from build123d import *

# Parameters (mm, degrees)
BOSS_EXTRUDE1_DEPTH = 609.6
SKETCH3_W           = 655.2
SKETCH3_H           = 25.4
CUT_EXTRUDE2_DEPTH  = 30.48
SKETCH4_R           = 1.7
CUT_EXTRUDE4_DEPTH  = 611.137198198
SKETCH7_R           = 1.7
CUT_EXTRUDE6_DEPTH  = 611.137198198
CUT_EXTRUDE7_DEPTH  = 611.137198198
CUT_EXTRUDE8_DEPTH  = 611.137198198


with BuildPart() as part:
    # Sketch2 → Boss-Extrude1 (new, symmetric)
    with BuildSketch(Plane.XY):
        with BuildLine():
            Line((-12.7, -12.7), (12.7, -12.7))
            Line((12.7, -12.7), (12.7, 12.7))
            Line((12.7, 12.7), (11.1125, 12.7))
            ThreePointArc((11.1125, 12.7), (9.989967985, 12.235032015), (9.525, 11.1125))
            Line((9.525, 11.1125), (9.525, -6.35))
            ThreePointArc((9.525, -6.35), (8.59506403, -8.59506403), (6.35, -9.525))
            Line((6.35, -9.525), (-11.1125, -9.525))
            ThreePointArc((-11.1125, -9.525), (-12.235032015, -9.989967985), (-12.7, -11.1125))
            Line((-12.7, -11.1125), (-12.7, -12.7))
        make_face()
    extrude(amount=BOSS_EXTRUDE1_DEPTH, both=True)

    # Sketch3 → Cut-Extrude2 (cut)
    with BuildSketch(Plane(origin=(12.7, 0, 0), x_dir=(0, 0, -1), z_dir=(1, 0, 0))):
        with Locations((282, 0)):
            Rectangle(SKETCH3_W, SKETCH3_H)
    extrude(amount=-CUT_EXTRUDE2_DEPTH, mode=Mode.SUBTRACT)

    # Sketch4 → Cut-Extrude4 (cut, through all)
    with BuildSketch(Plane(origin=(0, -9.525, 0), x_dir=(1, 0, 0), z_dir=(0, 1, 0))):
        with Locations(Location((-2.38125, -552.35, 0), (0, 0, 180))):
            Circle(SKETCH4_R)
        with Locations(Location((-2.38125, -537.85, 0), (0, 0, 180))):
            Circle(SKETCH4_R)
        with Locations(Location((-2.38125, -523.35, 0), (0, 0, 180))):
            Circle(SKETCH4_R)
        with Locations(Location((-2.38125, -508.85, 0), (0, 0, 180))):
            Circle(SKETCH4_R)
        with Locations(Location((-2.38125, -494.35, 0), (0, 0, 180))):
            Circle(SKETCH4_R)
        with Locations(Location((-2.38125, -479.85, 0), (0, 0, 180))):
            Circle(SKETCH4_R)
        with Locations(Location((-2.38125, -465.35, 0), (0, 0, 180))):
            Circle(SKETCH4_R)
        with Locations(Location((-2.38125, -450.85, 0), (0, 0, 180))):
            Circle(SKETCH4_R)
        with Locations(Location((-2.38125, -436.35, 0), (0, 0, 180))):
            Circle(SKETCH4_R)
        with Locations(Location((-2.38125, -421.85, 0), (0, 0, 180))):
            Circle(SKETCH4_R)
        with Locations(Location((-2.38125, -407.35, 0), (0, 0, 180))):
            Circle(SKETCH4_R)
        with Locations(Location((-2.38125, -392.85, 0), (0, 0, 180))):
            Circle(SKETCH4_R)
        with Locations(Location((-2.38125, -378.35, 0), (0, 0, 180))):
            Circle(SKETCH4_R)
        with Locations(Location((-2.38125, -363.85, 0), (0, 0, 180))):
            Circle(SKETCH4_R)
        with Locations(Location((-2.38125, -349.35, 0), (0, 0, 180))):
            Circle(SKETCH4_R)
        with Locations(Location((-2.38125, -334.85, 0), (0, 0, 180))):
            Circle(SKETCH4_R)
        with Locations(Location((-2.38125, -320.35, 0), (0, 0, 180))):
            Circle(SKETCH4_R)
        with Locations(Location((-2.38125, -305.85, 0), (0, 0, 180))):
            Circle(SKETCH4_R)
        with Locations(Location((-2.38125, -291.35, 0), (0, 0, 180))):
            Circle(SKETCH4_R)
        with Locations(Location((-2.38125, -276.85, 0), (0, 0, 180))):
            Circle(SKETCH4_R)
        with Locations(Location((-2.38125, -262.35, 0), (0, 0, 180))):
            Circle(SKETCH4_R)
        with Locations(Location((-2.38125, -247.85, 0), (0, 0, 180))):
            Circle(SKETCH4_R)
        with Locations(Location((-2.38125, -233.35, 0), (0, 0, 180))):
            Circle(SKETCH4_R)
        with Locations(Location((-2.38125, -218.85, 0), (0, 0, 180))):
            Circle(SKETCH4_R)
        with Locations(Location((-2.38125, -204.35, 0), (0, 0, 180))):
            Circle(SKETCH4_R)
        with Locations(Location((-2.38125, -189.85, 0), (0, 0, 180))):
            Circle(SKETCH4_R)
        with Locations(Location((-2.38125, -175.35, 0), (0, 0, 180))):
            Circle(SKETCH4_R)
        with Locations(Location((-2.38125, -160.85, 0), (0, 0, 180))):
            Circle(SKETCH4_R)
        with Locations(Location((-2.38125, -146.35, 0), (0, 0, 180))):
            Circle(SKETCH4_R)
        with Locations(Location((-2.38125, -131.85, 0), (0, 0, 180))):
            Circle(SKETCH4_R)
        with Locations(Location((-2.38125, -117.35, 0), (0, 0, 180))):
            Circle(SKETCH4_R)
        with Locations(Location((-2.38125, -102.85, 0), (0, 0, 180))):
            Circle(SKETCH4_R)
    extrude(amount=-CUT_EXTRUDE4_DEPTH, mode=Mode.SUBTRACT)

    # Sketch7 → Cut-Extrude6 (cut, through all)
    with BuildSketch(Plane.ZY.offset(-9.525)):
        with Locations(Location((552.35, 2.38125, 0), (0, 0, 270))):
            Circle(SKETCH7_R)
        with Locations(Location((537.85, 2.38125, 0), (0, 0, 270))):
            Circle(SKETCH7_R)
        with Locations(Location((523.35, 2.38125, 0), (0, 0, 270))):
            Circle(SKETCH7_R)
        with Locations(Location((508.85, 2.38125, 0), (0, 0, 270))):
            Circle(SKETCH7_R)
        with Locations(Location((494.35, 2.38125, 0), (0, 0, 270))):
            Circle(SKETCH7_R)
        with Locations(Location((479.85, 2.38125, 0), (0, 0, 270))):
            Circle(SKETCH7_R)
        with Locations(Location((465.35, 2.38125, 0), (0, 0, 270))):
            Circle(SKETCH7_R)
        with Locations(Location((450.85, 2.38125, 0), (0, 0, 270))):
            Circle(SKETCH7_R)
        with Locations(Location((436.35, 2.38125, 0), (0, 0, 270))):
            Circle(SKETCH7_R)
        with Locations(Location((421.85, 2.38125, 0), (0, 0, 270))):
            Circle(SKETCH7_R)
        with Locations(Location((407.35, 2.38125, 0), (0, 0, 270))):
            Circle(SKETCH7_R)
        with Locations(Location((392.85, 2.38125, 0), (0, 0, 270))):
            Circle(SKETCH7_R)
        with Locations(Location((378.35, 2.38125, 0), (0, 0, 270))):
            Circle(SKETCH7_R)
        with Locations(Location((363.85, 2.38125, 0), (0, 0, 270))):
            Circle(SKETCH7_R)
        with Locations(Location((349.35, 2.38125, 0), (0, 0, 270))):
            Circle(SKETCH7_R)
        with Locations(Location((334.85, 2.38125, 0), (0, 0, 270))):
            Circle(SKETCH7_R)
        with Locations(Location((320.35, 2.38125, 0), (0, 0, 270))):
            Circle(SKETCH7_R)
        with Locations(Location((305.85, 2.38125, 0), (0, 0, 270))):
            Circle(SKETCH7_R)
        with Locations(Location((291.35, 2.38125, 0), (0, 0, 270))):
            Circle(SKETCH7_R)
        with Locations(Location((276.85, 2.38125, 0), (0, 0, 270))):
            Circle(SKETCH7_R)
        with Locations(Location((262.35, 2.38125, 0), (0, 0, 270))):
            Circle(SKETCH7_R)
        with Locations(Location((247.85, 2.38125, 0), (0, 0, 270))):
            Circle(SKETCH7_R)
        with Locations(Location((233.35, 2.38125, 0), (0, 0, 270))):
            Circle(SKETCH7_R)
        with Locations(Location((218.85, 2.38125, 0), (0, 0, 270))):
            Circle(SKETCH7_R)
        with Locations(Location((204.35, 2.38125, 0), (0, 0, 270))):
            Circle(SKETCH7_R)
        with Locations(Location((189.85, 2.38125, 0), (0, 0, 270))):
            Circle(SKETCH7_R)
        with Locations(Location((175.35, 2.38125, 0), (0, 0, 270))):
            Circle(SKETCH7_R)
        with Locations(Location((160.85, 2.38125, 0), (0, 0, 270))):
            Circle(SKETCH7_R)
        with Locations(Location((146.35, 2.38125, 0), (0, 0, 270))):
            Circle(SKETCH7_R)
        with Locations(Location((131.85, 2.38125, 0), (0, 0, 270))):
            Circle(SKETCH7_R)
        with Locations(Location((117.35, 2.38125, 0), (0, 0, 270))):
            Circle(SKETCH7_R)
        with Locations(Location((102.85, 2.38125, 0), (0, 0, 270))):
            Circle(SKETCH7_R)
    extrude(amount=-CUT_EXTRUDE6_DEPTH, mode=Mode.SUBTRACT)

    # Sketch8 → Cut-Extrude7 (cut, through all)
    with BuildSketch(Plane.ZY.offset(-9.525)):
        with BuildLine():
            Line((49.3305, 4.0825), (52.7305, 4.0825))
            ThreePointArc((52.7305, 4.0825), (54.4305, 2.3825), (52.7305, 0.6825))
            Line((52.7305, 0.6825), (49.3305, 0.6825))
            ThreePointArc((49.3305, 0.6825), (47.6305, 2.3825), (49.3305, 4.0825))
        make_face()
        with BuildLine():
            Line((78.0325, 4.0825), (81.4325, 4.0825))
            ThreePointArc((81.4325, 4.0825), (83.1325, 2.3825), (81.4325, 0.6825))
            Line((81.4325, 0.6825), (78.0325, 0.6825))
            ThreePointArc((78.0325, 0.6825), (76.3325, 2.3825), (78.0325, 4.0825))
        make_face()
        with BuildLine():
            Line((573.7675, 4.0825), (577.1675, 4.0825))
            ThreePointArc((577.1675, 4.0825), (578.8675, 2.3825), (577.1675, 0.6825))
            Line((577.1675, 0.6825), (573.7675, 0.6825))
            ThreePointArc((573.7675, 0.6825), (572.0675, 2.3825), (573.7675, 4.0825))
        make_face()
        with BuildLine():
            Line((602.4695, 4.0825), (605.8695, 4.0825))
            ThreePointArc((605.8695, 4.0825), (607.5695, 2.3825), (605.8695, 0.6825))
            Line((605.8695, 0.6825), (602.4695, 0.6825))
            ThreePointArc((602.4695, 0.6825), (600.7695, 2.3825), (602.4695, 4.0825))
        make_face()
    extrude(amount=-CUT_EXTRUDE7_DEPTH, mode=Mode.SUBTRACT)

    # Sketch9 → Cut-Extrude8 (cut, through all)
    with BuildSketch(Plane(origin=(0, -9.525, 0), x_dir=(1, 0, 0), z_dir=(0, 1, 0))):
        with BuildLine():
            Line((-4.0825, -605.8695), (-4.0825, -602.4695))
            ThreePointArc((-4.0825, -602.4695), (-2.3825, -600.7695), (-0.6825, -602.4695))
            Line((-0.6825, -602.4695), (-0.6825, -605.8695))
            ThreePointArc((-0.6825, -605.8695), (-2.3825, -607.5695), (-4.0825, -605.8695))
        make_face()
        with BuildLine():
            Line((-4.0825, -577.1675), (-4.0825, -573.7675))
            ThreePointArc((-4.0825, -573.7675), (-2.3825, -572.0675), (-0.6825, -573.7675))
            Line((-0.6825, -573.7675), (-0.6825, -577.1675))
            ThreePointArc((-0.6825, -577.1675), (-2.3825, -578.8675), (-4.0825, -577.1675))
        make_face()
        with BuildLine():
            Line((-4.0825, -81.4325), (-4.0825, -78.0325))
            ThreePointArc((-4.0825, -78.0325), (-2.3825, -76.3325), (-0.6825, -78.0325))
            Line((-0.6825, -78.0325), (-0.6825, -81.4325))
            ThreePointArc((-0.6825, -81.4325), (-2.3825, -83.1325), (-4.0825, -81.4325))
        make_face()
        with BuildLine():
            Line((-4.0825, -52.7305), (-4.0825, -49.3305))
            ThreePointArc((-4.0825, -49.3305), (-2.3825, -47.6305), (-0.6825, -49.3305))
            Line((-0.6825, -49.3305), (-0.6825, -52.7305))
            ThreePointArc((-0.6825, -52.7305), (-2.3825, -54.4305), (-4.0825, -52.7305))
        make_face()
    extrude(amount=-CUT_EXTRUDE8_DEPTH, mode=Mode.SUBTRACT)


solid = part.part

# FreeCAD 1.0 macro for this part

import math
import FreeCAD as App
import Part
import Sketcher
Q = App.Units.Quantity


def add_polygon(sketch, points):
    """Adds a closed chain of lines whose ends are joined by coincident constraints."""
    first, n = sketch.GeometryCount, len(points)
    for a, b in zip(points, points[1:] + points[:1]):
        sketch.addGeometry(Part.LineSegment(App.Vector(*a, 0), App.Vector(*b, 0)), False)
    for i in range(n):
        sketch.addConstraint(Sketcher.Constraint("Coincident", first + i, 2, first + (i + 1) % n, 1))

doc = App.newDocument("Part")
body = doc.addObject("PartDesign::Body", "Body")

# Sketch on XY plane
sketch1 = body.newObject("Sketcher::SketchObject", "Sketch")
sketch1.AttachmentSupport = (doc.getObject("XY_Plane"), [""])
sketch1.MapMode = "FlatFace"
sketch1.addGeometry([
    Part.LineSegment(App.Vector(-12.7, -12.7, 0), App.Vector(12.7, -12.7, 0)),  # 0
    Part.LineSegment(App.Vector(12.7, -12.7, 0), App.Vector(12.7, 12.7, 0)),  # 1
    Part.LineSegment(App.Vector(12.7, 12.7, 0), App.Vector(11.1125, 12.7, 0)),  # 2
    Part.ArcOfCircle(Part.Circle(App.Vector(11.1125, 11.1125, 0), App.Vector(0, 0, 1), 1.5875), math.radians(90), math.radians(180)),  # 3
    Part.LineSegment(App.Vector(9.525, 11.1125, 0), App.Vector(9.525, -6.35, 0)),  # 4
    Part.ArcOfCircle(Part.Circle(App.Vector(6.35, -6.35, 0), App.Vector(0, 0, 1), 3.175), math.radians(-90), math.radians(0)),  # 5
    Part.LineSegment(App.Vector(6.35, -9.525, 0), App.Vector(-11.1125, -9.525, 0)),  # 6
    Part.ArcOfCircle(Part.Circle(App.Vector(-11.1125, -11.1125, 0), App.Vector(0, 0, 1), 1.5875), math.radians(90), math.radians(180)),  # 7
    Part.LineSegment(App.Vector(-12.7, -11.1125, 0), App.Vector(-12.7, -12.7, 0)),  # 8
], False)
sketch1.addConstraint([
    Sketcher.Constraint("Coincident", 0, 2, 1, 1),
    Sketcher.Constraint("Coincident", 1, 2, 2, 1),
    Sketcher.Constraint("Tangent", 2, 2, 3, 1),
    Sketcher.Constraint("Tangent", 3, 2, 4, 1),
    Sketcher.Constraint("Tangent", 4, 2, 5, 2),
    Sketcher.Constraint("Tangent", 5, 1, 6, 1),
    Sketcher.Constraint("Tangent", 6, 2, 7, 1),
    Sketcher.Constraint("Tangent", 7, 2, 8, 1),
    Sketcher.Constraint("Coincident", 8, 2, 0, 1),
    Sketcher.Constraint("Horizontal", 0),
    Sketcher.Constraint("Vertical", 1),
    Sketcher.Constraint("Horizontal", 2),
    Sketcher.Constraint("Vertical", 4),
    Sketcher.Constraint("Horizontal", 6),
    Sketcher.Constraint("Vertical", 8),
    Sketcher.Constraint("Equal", 3, 7),
    Sketcher.Constraint("Symmetric", 3, 3, 7, 3, -1, 1),
    Sketcher.Constraint("Symmetric", 1, 2, 8, 2, -1, 1),
    Sketcher.Constraint("Equal", 0, 1),
    Sketcher.Constraint("DistanceX", 0, 1, 0, 2, Q("1 in")),
    Sketcher.Constraint("Radius", 3, Q("0.0625 in")),
    Sketcher.Constraint("Radius", 5, Q("0.125 in")),
])
pad1 = body.newObject("PartDesign::Pad", "Pad")
pad1.Profile = sketch1
pad1.Length = Q("48 in")
pad1.Midplane = True

# Sketch on YZ plane
sketch2 = body.newObject("Sketcher::SketchObject", "Sketch001")
sketch2.AttachmentSupport = (doc.getObject("YZ_Plane"), [""])
sketch2.MapMode = "FlatFace"
sketch2.AttachmentOffset = App.Placement(App.Vector(0, 0, 0.5 * 25.4), App.Rotation())
add_polygon(sketch2, [(12.7, 45.6), (-12.7, 45.6), (-12.7, -609.6), (12.7, -609.6)])  # lines 0-3
sketch2.addConstraint([
    Sketcher.Constraint("Horizontal", 0),
    Sketcher.Constraint("Vertical", 1),
    Sketcher.Constraint("Horizontal", 2),
    Sketcher.Constraint("Vertical", 3),
    Sketcher.Constraint("DistanceX", 0, 2, 0, 1, Q("1 in")),
    Sketcher.Constraint("DistanceY", 1, 2, -1, 1, Q("24 in")),
    Sketcher.Constraint("DistanceX", 0, 2, -1, 1, Q("0.5 in")),
    Sketcher.Constraint("DistanceY", 1, 2, 1, 1, Q("655.2 mm")),
])
pocket1 = body.newObject("PartDesign::Pocket", "Pocket")
pocket1.Profile = sketch2
pocket1.Length = Q("1.2 in")

# Sketch on XZ plane
sketch3 = body.newObject("Sketcher::SketchObject", "Sketch002")
sketch3.AttachmentSupport = (doc.getObject("XZ_Plane"), [""])
sketch3.MapMode = "FlatFace"
sketch3.AttachmentOffset = App.Placement(App.Vector(0, 0, 0.375 * 25.4), App.Rotation())
sketch3.addGeometry([
    Part.Circle(App.Vector(-2.38125, 552.35, 0), App.Vector(0, 0, 1), 1.7),  # 0
    Part.Circle(App.Vector(-2.38125, 537.85, 0), App.Vector(0, 0, 1), 1.7),  # 1
    Part.Circle(App.Vector(-2.38125, 523.35, 0), App.Vector(0, 0, 1), 1.7),  # 2
    Part.Circle(App.Vector(-2.38125, 508.85, 0), App.Vector(0, 0, 1), 1.7),  # 3
    Part.Circle(App.Vector(-2.38125, 494.35, 0), App.Vector(0, 0, 1), 1.7),  # 4
    Part.Circle(App.Vector(-2.38125, 479.85, 0), App.Vector(0, 0, 1), 1.7),  # 5
    Part.Circle(App.Vector(-2.38125, 465.35, 0), App.Vector(0, 0, 1), 1.7),  # 6
    Part.Circle(App.Vector(-2.38125, 450.85, 0), App.Vector(0, 0, 1), 1.7),  # 7
    Part.Circle(App.Vector(-2.38125, 436.35, 0), App.Vector(0, 0, 1), 1.7),  # 8
    Part.Circle(App.Vector(-2.38125, 421.85, 0), App.Vector(0, 0, 1), 1.7),  # 9
    Part.Circle(App.Vector(-2.38125, 407.35, 0), App.Vector(0, 0, 1), 1.7),  # 10
    Part.Circle(App.Vector(-2.38125, 392.85, 0), App.Vector(0, 0, 1), 1.7),  # 11
    Part.Circle(App.Vector(-2.38125, 378.35, 0), App.Vector(0, 0, 1), 1.7),  # 12
    Part.Circle(App.Vector(-2.38125, 363.85, 0), App.Vector(0, 0, 1), 1.7),  # 13
    Part.Circle(App.Vector(-2.38125, 349.35, 0), App.Vector(0, 0, 1), 1.7),  # 14
    Part.Circle(App.Vector(-2.38125, 334.85, 0), App.Vector(0, 0, 1), 1.7),  # 15
    Part.Circle(App.Vector(-2.38125, 320.35, 0), App.Vector(0, 0, 1), 1.7),  # 16
    Part.Circle(App.Vector(-2.38125, 305.85, 0), App.Vector(0, 0, 1), 1.7),  # 17
    Part.Circle(App.Vector(-2.38125, 291.35, 0), App.Vector(0, 0, 1), 1.7),  # 18
    Part.Circle(App.Vector(-2.38125, 276.85, 0), App.Vector(0, 0, 1), 1.7),  # 19
    Part.Circle(App.Vector(-2.38125, 262.35, 0), App.Vector(0, 0, 1), 1.7),  # 20
    Part.Circle(App.Vector(-2.38125, 247.85, 0), App.Vector(0, 0, 1), 1.7),  # 21
    Part.Circle(App.Vector(-2.38125, 233.35, 0), App.Vector(0, 0, 1), 1.7),  # 22
    Part.Circle(App.Vector(-2.38125, 218.85, 0), App.Vector(0, 0, 1), 1.7),  # 23
    Part.Circle(App.Vector(-2.38125, 204.35, 0), App.Vector(0, 0, 1), 1.7),  # 24
    Part.Circle(App.Vector(-2.38125, 189.85, 0), App.Vector(0, 0, 1), 1.7),  # 25
    Part.Circle(App.Vector(-2.38125, 175.35, 0), App.Vector(0, 0, 1), 1.7),  # 26
    Part.Circle(App.Vector(-2.38125, 160.85, 0), App.Vector(0, 0, 1), 1.7),  # 27
    Part.Circle(App.Vector(-2.38125, 146.35, 0), App.Vector(0, 0, 1), 1.7),  # 28
    Part.Circle(App.Vector(-2.38125, 131.85, 0), App.Vector(0, 0, 1), 1.7),  # 29
    Part.Circle(App.Vector(-2.38125, 117.35, 0), App.Vector(0, 0, 1), 1.7),  # 30
    Part.Circle(App.Vector(-2.38125, 102.85, 0), App.Vector(0, 0, 1), 1.7),  # 31
], False)
sketch3.addConstraint([
    Sketcher.Constraint("Equal", 0, 1),
    Sketcher.Constraint("Equal", 1, 2),
    Sketcher.Constraint("Equal", 2, 3),
    Sketcher.Constraint("Equal", 3, 4),
    Sketcher.Constraint("Equal", 4, 5),
    Sketcher.Constraint("Equal", 5, 6),
    Sketcher.Constraint("Equal", 6, 7),
    Sketcher.Constraint("Equal", 7, 8),
    Sketcher.Constraint("Equal", 8, 9),
    Sketcher.Constraint("Equal", 9, 10),
    Sketcher.Constraint("Equal", 10, 11),
    Sketcher.Constraint("Equal", 11, 12),
    Sketcher.Constraint("Equal", 12, 13),
    Sketcher.Constraint("Equal", 13, 14),
    Sketcher.Constraint("Equal", 14, 15),
    Sketcher.Constraint("Equal", 15, 16),
    Sketcher.Constraint("Equal", 16, 17),
    Sketcher.Constraint("Equal", 17, 18),
    Sketcher.Constraint("Equal", 18, 19),
    Sketcher.Constraint("Equal", 19, 20),
    Sketcher.Constraint("Equal", 20, 21),
    Sketcher.Constraint("Equal", 21, 22),
    Sketcher.Constraint("Equal", 22, 23),
    Sketcher.Constraint("Equal", 23, 24),
    Sketcher.Constraint("Equal", 24, 25),
    Sketcher.Constraint("Equal", 25, 26),
    Sketcher.Constraint("Equal", 26, 27),
    Sketcher.Constraint("Equal", 27, 28),
    Sketcher.Constraint("Equal", 28, 29),
    Sketcher.Constraint("Equal", 29, 30),
    Sketcher.Constraint("Equal", 30, 31),
    Sketcher.Constraint("Vertical", 0, 3, 1, 3),
    Sketcher.Constraint("Vertical", 1, 3, 2, 3),
    Sketcher.Constraint("Vertical", 2, 3, 3, 3),
    Sketcher.Constraint("Vertical", 3, 3, 4, 3),
    Sketcher.Constraint("Vertical", 4, 3, 5, 3),
    Sketcher.Constraint("Vertical", 5, 3, 6, 3),
    Sketcher.Constraint("Vertical", 6, 3, 7, 3),
    Sketcher.Constraint("Vertical", 7, 3, 8, 3),
    Sketcher.Constraint("Vertical", 8, 3, 9, 3),
    Sketcher.Constraint("Vertical", 9, 3, 10, 3),
    Sketcher.Constraint("Vertical", 10, 3, 11, 3),
    Sketcher.Constraint("Vertical", 11, 3, 12, 3),
    Sketcher.Constraint("Vertical", 12, 3, 13, 3),
    Sketcher.Constraint("Vertical", 13, 3, 14, 3),
    Sketcher.Constraint("Vertical", 14, 3, 15, 3),
    Sketcher.Constraint("Vertical", 15, 3, 16, 3),
    Sketcher.Constraint("Vertical", 16, 3, 17, 3),
    Sketcher.Constraint("Vertical", 17, 3, 18, 3),
    Sketcher.Constraint("Vertical", 18, 3, 19, 3),
    Sketcher.Constraint("Vertical", 19, 3, 20, 3),
    Sketcher.Constraint("Vertical", 20, 3, 21, 3),
    Sketcher.Constraint("Vertical", 21, 3, 22, 3),
    Sketcher.Constraint("Vertical", 22, 3, 23, 3),
    Sketcher.Constraint("Vertical", 23, 3, 24, 3),
    Sketcher.Constraint("Vertical", 24, 3, 25, 3),
    Sketcher.Constraint("Vertical", 25, 3, 26, 3),
    Sketcher.Constraint("Vertical", 26, 3, 27, 3),
    Sketcher.Constraint("Vertical", 27, 3, 28, 3),
    Sketcher.Constraint("Vertical", 28, 3, 29, 3),
    Sketcher.Constraint("Vertical", 29, 3, 30, 3),
    Sketcher.Constraint("Vertical", 30, 3, 31, 3),
    Sketcher.Constraint("Diameter", 0, Q("3.4 mm")),
    Sketcher.Constraint("DistanceY", -1, 1, 7, 3, Q("17.75 in")),
    Sketcher.Constraint("DistanceX", 0, 3, -1, 1, Q("0.09375 in")),
    Sketcher.Constraint("DistanceY", -1, 1, 0, 3, Q("552.35 mm")),
    Sketcher.Constraint("DistanceY", -1, 1, 1, 3, Q("537.85 mm")),
    Sketcher.Constraint("DistanceY", -1, 1, 2, 3, Q("523.35 mm")),
    Sketcher.Constraint("DistanceY", -1, 1, 3, 3, Q("508.85 mm")),
    Sketcher.Constraint("DistanceY", -1, 1, 4, 3, Q("494.35 mm")),
    Sketcher.Constraint("DistanceY", -1, 1, 5, 3, Q("479.85 mm")),
    Sketcher.Constraint("DistanceY", -1, 1, 6, 3, Q("465.35 mm")),
    Sketcher.Constraint("DistanceY", -1, 1, 8, 3, Q("436.35 mm")),
    Sketcher.Constraint("DistanceY", -1, 1, 9, 3, Q("421.85 mm")),
    Sketcher.Constraint("DistanceY", -1, 1, 10, 3, Q("407.35 mm")),
    Sketcher.Constraint("DistanceY", -1, 1, 11, 3, Q("392.85 mm")),
    Sketcher.Constraint("DistanceY", -1, 1, 12, 3, Q("378.35 mm")),
    Sketcher.Constraint("DistanceY", -1, 1, 13, 3, Q("363.85 mm")),
    Sketcher.Constraint("DistanceY", -1, 1, 14, 3, Q("349.35 mm")),
    Sketcher.Constraint("DistanceY", -1, 1, 15, 3, Q("334.85 mm")),
    Sketcher.Constraint("DistanceY", -1, 1, 16, 3, Q("320.35 mm")),
    Sketcher.Constraint("DistanceY", -1, 1, 17, 3, Q("305.85 mm")),
    Sketcher.Constraint("DistanceY", -1, 1, 18, 3, Q("291.35 mm")),
    Sketcher.Constraint("DistanceY", -1, 1, 19, 3, Q("276.85 mm")),
    Sketcher.Constraint("DistanceY", -1, 1, 20, 3, Q("262.35 mm")),
    Sketcher.Constraint("DistanceY", -1, 1, 21, 3, Q("247.85 mm")),
    Sketcher.Constraint("DistanceY", -1, 1, 22, 3, Q("233.35 mm")),
    Sketcher.Constraint("DistanceY", -1, 1, 23, 3, Q("218.85 mm")),
    Sketcher.Constraint("DistanceY", -1, 1, 24, 3, Q("204.35 mm")),
    Sketcher.Constraint("DistanceY", -1, 1, 25, 3, Q("189.85 mm")),
    Sketcher.Constraint("DistanceY", -1, 1, 26, 3, Q("175.35 mm")),
    Sketcher.Constraint("DistanceY", -1, 1, 27, 3, Q("160.85 mm")),
    Sketcher.Constraint("DistanceY", -1, 1, 28, 3, Q("146.35 mm")),
    Sketcher.Constraint("DistanceY", -1, 1, 29, 3, Q("131.85 mm")),
    Sketcher.Constraint("DistanceY", -1, 1, 30, 3, Q("117.35 mm")),
    Sketcher.Constraint("DistanceY", -1, 1, 31, 3, Q("102.85 mm")),
])
pocket2 = body.newObject("PartDesign::Pocket", "Pocket001")
pocket2.Profile = sketch3
pocket2.Type = "ThroughAll"
pocket2.Reversed = True

# Sketch on YZ plane
sketch4 = body.newObject("Sketcher::SketchObject", "Sketch003")
sketch4.AttachmentSupport = (doc.getObject("YZ_Plane"), [""])
sketch4.MapMode = "FlatFace"
sketch4.AttachmentOffset = App.Placement(App.Vector(0, 0, 0.375 * 25.4), App.Rotation())
sketch4.addGeometry([
    Part.Circle(App.Vector(2.38125, 552.35, 0), App.Vector(0, 0, 1), 1.7),  # 0
    Part.Circle(App.Vector(2.38125, 537.85, 0), App.Vector(0, 0, 1), 1.7),  # 1
    Part.Circle(App.Vector(2.38125, 523.35, 0), App.Vector(0, 0, 1), 1.7),  # 2
    Part.Circle(App.Vector(2.38125, 508.85, 0), App.Vector(0, 0, 1), 1.7),  # 3
    Part.Circle(App.Vector(2.38125, 494.35, 0), App.Vector(0, 0, 1), 1.7),  # 4
    Part.Circle(App.Vector(2.38125, 479.85, 0), App.Vector(0, 0, 1), 1.7),  # 5
    Part.Circle(App.Vector(2.38125, 465.35, 0), App.Vector(0, 0, 1), 1.7),  # 6
    Part.Circle(App.Vector(2.38125, 450.85, 0), App.Vector(0, 0, 1), 1.7),  # 7
    Part.Circle(App.Vector(2.38125, 436.35, 0), App.Vector(0, 0, 1), 1.7),  # 8
    Part.Circle(App.Vector(2.38125, 421.85, 0), App.Vector(0, 0, 1), 1.7),  # 9
    Part.Circle(App.Vector(2.38125, 407.35, 0), App.Vector(0, 0, 1), 1.7),  # 10
    Part.Circle(App.Vector(2.38125, 392.85, 0), App.Vector(0, 0, 1), 1.7),  # 11
    Part.Circle(App.Vector(2.38125, 378.35, 0), App.Vector(0, 0, 1), 1.7),  # 12
    Part.Circle(App.Vector(2.38125, 363.85, 0), App.Vector(0, 0, 1), 1.7),  # 13
    Part.Circle(App.Vector(2.38125, 349.35, 0), App.Vector(0, 0, 1), 1.7),  # 14
    Part.Circle(App.Vector(2.38125, 334.85, 0), App.Vector(0, 0, 1), 1.7),  # 15
    Part.Circle(App.Vector(2.38125, 320.35, 0), App.Vector(0, 0, 1), 1.7),  # 16
    Part.Circle(App.Vector(2.38125, 305.85, 0), App.Vector(0, 0, 1), 1.7),  # 17
    Part.Circle(App.Vector(2.38125, 291.35, 0), App.Vector(0, 0, 1), 1.7),  # 18
    Part.Circle(App.Vector(2.38125, 276.85, 0), App.Vector(0, 0, 1), 1.7),  # 19
    Part.Circle(App.Vector(2.38125, 262.35, 0), App.Vector(0, 0, 1), 1.7),  # 20
    Part.Circle(App.Vector(2.38125, 247.85, 0), App.Vector(0, 0, 1), 1.7),  # 21
    Part.Circle(App.Vector(2.38125, 233.35, 0), App.Vector(0, 0, 1), 1.7),  # 22
    Part.Circle(App.Vector(2.38125, 218.85, 0), App.Vector(0, 0, 1), 1.7),  # 23
    Part.Circle(App.Vector(2.38125, 204.35, 0), App.Vector(0, 0, 1), 1.7),  # 24
    Part.Circle(App.Vector(2.38125, 189.85, 0), App.Vector(0, 0, 1), 1.7),  # 25
    Part.Circle(App.Vector(2.38125, 175.35, 0), App.Vector(0, 0, 1), 1.7),  # 26
    Part.Circle(App.Vector(2.38125, 160.85, 0), App.Vector(0, 0, 1), 1.7),  # 27
    Part.Circle(App.Vector(2.38125, 146.35, 0), App.Vector(0, 0, 1), 1.7),  # 28
    Part.Circle(App.Vector(2.38125, 131.85, 0), App.Vector(0, 0, 1), 1.7),  # 29
    Part.Circle(App.Vector(2.38125, 117.35, 0), App.Vector(0, 0, 1), 1.7),  # 30
    Part.Circle(App.Vector(2.38125, 102.85, 0), App.Vector(0, 0, 1), 1.7),  # 31
], False)
sketch4.addConstraint([
    Sketcher.Constraint("Equal", 0, 1),
    Sketcher.Constraint("Equal", 1, 2),
    Sketcher.Constraint("Equal", 2, 3),
    Sketcher.Constraint("Equal", 3, 4),
    Sketcher.Constraint("Equal", 4, 5),
    Sketcher.Constraint("Equal", 5, 6),
    Sketcher.Constraint("Equal", 6, 7),
    Sketcher.Constraint("Equal", 7, 8),
    Sketcher.Constraint("Equal", 8, 9),
    Sketcher.Constraint("Equal", 9, 10),
    Sketcher.Constraint("Equal", 10, 11),
    Sketcher.Constraint("Equal", 11, 12),
    Sketcher.Constraint("Equal", 12, 13),
    Sketcher.Constraint("Equal", 13, 14),
    Sketcher.Constraint("Equal", 14, 15),
    Sketcher.Constraint("Equal", 15, 16),
    Sketcher.Constraint("Equal", 16, 17),
    Sketcher.Constraint("Equal", 17, 18),
    Sketcher.Constraint("Equal", 18, 19),
    Sketcher.Constraint("Equal", 19, 20),
    Sketcher.Constraint("Equal", 20, 21),
    Sketcher.Constraint("Equal", 21, 22),
    Sketcher.Constraint("Equal", 22, 23),
    Sketcher.Constraint("Equal", 23, 24),
    Sketcher.Constraint("Equal", 24, 25),
    Sketcher.Constraint("Equal", 25, 26),
    Sketcher.Constraint("Equal", 26, 27),
    Sketcher.Constraint("Equal", 27, 28),
    Sketcher.Constraint("Equal", 28, 29),
    Sketcher.Constraint("Equal", 29, 30),
    Sketcher.Constraint("Equal", 30, 31),
    Sketcher.Constraint("Vertical", 0, 3, 1, 3),
    Sketcher.Constraint("Vertical", 1, 3, 2, 3),
    Sketcher.Constraint("Vertical", 2, 3, 3, 3),
    Sketcher.Constraint("Vertical", 3, 3, 4, 3),
    Sketcher.Constraint("Vertical", 4, 3, 5, 3),
    Sketcher.Constraint("Vertical", 5, 3, 6, 3),
    Sketcher.Constraint("Vertical", 6, 3, 7, 3),
    Sketcher.Constraint("Vertical", 7, 3, 8, 3),
    Sketcher.Constraint("Vertical", 8, 3, 9, 3),
    Sketcher.Constraint("Vertical", 9, 3, 10, 3),
    Sketcher.Constraint("Vertical", 10, 3, 11, 3),
    Sketcher.Constraint("Vertical", 11, 3, 12, 3),
    Sketcher.Constraint("Vertical", 12, 3, 13, 3),
    Sketcher.Constraint("Vertical", 13, 3, 14, 3),
    Sketcher.Constraint("Vertical", 14, 3, 15, 3),
    Sketcher.Constraint("Vertical", 15, 3, 16, 3),
    Sketcher.Constraint("Vertical", 16, 3, 17, 3),
    Sketcher.Constraint("Vertical", 17, 3, 18, 3),
    Sketcher.Constraint("Vertical", 18, 3, 19, 3),
    Sketcher.Constraint("Vertical", 19, 3, 20, 3),
    Sketcher.Constraint("Vertical", 20, 3, 21, 3),
    Sketcher.Constraint("Vertical", 21, 3, 22, 3),
    Sketcher.Constraint("Vertical", 22, 3, 23, 3),
    Sketcher.Constraint("Vertical", 23, 3, 24, 3),
    Sketcher.Constraint("Vertical", 24, 3, 25, 3),
    Sketcher.Constraint("Vertical", 25, 3, 26, 3),
    Sketcher.Constraint("Vertical", 26, 3, 27, 3),
    Sketcher.Constraint("Vertical", 27, 3, 28, 3),
    Sketcher.Constraint("Vertical", 28, 3, 29, 3),
    Sketcher.Constraint("Vertical", 29, 3, 30, 3),
    Sketcher.Constraint("Vertical", 30, 3, 31, 3),
    Sketcher.Constraint("Diameter", 0, Q("3.4 mm")),
    Sketcher.Constraint("DistanceY", -1, 1, 7, 3, Q("17.75 in")),
    Sketcher.Constraint("DistanceX", -1, 1, 0, 3, Q("0.09375 in")),
    Sketcher.Constraint("DistanceY", -1, 1, 0, 3, Q("552.35 mm")),
    Sketcher.Constraint("DistanceY", -1, 1, 1, 3, Q("537.85 mm")),
    Sketcher.Constraint("DistanceY", -1, 1, 2, 3, Q("523.35 mm")),
    Sketcher.Constraint("DistanceY", -1, 1, 3, 3, Q("508.85 mm")),
    Sketcher.Constraint("DistanceY", -1, 1, 4, 3, Q("494.35 mm")),
    Sketcher.Constraint("DistanceY", -1, 1, 5, 3, Q("479.85 mm")),
    Sketcher.Constraint("DistanceY", -1, 1, 6, 3, Q("465.35 mm")),
    Sketcher.Constraint("DistanceY", -1, 1, 8, 3, Q("436.35 mm")),
    Sketcher.Constraint("DistanceY", -1, 1, 9, 3, Q("421.85 mm")),
    Sketcher.Constraint("DistanceY", -1, 1, 10, 3, Q("407.35 mm")),
    Sketcher.Constraint("DistanceY", -1, 1, 11, 3, Q("392.85 mm")),
    Sketcher.Constraint("DistanceY", -1, 1, 12, 3, Q("378.35 mm")),
    Sketcher.Constraint("DistanceY", -1, 1, 13, 3, Q("363.85 mm")),
    Sketcher.Constraint("DistanceY", -1, 1, 14, 3, Q("349.35 mm")),
    Sketcher.Constraint("DistanceY", -1, 1, 15, 3, Q("334.85 mm")),
    Sketcher.Constraint("DistanceY", -1, 1, 16, 3, Q("320.35 mm")),
    Sketcher.Constraint("DistanceY", -1, 1, 17, 3, Q("305.85 mm")),
    Sketcher.Constraint("DistanceY", -1, 1, 18, 3, Q("291.35 mm")),
    Sketcher.Constraint("DistanceY", -1, 1, 19, 3, Q("276.85 mm")),
    Sketcher.Constraint("DistanceY", -1, 1, 20, 3, Q("262.35 mm")),
    Sketcher.Constraint("DistanceY", -1, 1, 21, 3, Q("247.85 mm")),
    Sketcher.Constraint("DistanceY", -1, 1, 22, 3, Q("233.35 mm")),
    Sketcher.Constraint("DistanceY", -1, 1, 23, 3, Q("218.85 mm")),
    Sketcher.Constraint("DistanceY", -1, 1, 24, 3, Q("204.35 mm")),
    Sketcher.Constraint("DistanceY", -1, 1, 25, 3, Q("189.85 mm")),
    Sketcher.Constraint("DistanceY", -1, 1, 26, 3, Q("175.35 mm")),
    Sketcher.Constraint("DistanceY", -1, 1, 27, 3, Q("160.85 mm")),
    Sketcher.Constraint("DistanceY", -1, 1, 28, 3, Q("146.35 mm")),
    Sketcher.Constraint("DistanceY", -1, 1, 29, 3, Q("131.85 mm")),
    Sketcher.Constraint("DistanceY", -1, 1, 30, 3, Q("117.35 mm")),
    Sketcher.Constraint("DistanceY", -1, 1, 31, 3, Q("102.85 mm")),
])
pocket3 = body.newObject("PartDesign::Pocket", "Pocket002")
pocket3.Profile = sketch4
pocket3.Type = "ThroughAll"
pocket3.Reversed = True

# Sketch on YZ plane
sketch5 = body.newObject("Sketcher::SketchObject", "Sketch004")
sketch5.AttachmentSupport = (doc.getObject("YZ_Plane"), [""])
sketch5.MapMode = "FlatFace"
sketch5.AttachmentOffset = App.Placement(App.Vector(0, 0, 0.375 * 25.4), App.Rotation())
sketch5.addGeometry([
    Part.LineSegment(App.Vector(4.0825, 52.7305, 0), App.Vector(4.0825, 49.3305, 0)),  # 0
    Part.ArcOfCircle(Part.Circle(App.Vector(2.3825, 49.3305, 0), App.Vector(0, 0, 1), 1.7), math.radians(180), math.radians(360)),  # 1
    Part.LineSegment(App.Vector(0.6825, 49.3305, 0), App.Vector(0.6825, 52.7305, 0)),  # 2
    Part.ArcOfCircle(Part.Circle(App.Vector(2.3825, 52.7305, 0), App.Vector(0, 0, 1), 1.7), math.radians(0), math.radians(180)),  # 3
    Part.LineSegment(App.Vector(4.0825, 81.4325, 0), App.Vector(4.0825, 78.0325, 0)),  # 4
    Part.ArcOfCircle(Part.Circle(App.Vector(2.3825, 78.0325, 0), App.Vector(0, 0, 1), 1.7), math.radians(180), math.radians(360)),  # 5
    Part.LineSegment(App.Vector(0.6825, 78.0325, 0), App.Vector(0.6825, 81.4325, 0)),  # 6
    Part.ArcOfCircle(Part.Circle(App.Vector(2.3825, 81.4325, 0), App.Vector(0, 0, 1), 1.7), math.radians(0), math.radians(180)),  # 7
    Part.LineSegment(App.Vector(4.0825, 577.1675, 0), App.Vector(4.0825, 573.7675, 0)),  # 8
    Part.ArcOfCircle(Part.Circle(App.Vector(2.3825, 573.7675, 0), App.Vector(0, 0, 1), 1.7), math.radians(180), math.radians(360)),  # 9
    Part.LineSegment(App.Vector(0.6825, 573.7675, 0), App.Vector(0.6825, 577.1675, 0)),  # 10
    Part.ArcOfCircle(Part.Circle(App.Vector(2.3825, 577.1675, 0), App.Vector(0, 0, 1), 1.7), math.radians(0), math.radians(180)),  # 11
    Part.LineSegment(App.Vector(4.0825, 605.8695, 0), App.Vector(4.0825, 602.4695, 0)),  # 12
    Part.ArcOfCircle(Part.Circle(App.Vector(2.3825, 602.4695, 0), App.Vector(0, 0, 1), 1.7), math.radians(180), math.radians(360)),  # 13
    Part.LineSegment(App.Vector(0.6825, 602.4695, 0), App.Vector(0.6825, 605.8695, 0)),  # 14
    Part.ArcOfCircle(Part.Circle(App.Vector(2.3825, 605.8695, 0), App.Vector(0, 0, 1), 1.7), math.radians(0), math.radians(180)),  # 15
], False)
sketch5.addConstraint([
    Sketcher.Constraint("Tangent", 0, 2, 1, 2),
    Sketcher.Constraint("Tangent", 1, 1, 2, 1),
    Sketcher.Constraint("Tangent", 2, 2, 3, 2),
    Sketcher.Constraint("Tangent", 3, 1, 0, 1),
    Sketcher.Constraint("Tangent", 4, 2, 5, 2),
    Sketcher.Constraint("Tangent", 5, 1, 6, 1),
    Sketcher.Constraint("Tangent", 6, 2, 7, 2),
    Sketcher.Constraint("Tangent", 7, 1, 4, 1),
    Sketcher.Constraint("Tangent", 8, 2, 9, 2),
    Sketcher.Constraint("Tangent", 9, 1, 10, 1),
    Sketcher.Constraint("Tangent", 10, 2, 11, 2),
    Sketcher.Constraint("Tangent", 11, 1, 8, 1),
    Sketcher.Constraint("Tangent", 12, 2, 13, 2),
    Sketcher.Constraint("Tangent", 13, 1, 14, 1),
    Sketcher.Constraint("Tangent", 14, 2, 15, 2),
    Sketcher.Constraint("Tangent", 15, 1, 12, 1),
    Sketcher.Constraint("Vertical", 0),
    Sketcher.Constraint("Vertical", 2),
    Sketcher.Constraint("Vertical", 4),
    Sketcher.Constraint("Vertical", 6),
    Sketcher.Constraint("Vertical", 8),
    Sketcher.Constraint("Vertical", 10),
    Sketcher.Constraint("Vertical", 12),
    Sketcher.Constraint("Vertical", 14),
    Sketcher.Constraint("Equal", 3, 5),
    Sketcher.Constraint("Equal", 7, 9),
    Sketcher.Constraint("Equal", 11, 13),
    Sketcher.Constraint("Vertical", 3, 3, 5, 3),
    Sketcher.Constraint("Vertical", 7, 3, 9, 3),
    Sketcher.Constraint("Vertical", 11, 3, 13, 3),
    Sketcher.Constraint("Equal", 2, 4),
    Sketcher.Constraint("Equal", 6, 8),
    Sketcher.Constraint("Equal", 10, 12),
    Sketcher.Constraint("Radius", 1, Q("1.7 mm")),
    Sketcher.Constraint("DistanceY", 1, 3, 5, 3, Q("1.13 in")),
    Sketcher.Constraint("DistanceY", 9, 3, 13, 3, Q("1.13 in")),
    Sketcher.Constraint("DistanceY", 0, 2, 0, 1, Q("3.4 mm")),
    Sketcher.Constraint("DistanceX", -1, 1, 1, 3, Q("2.3825 mm")),
    Sketcher.Constraint("DistanceY", -1, 1, 1, 3, Q("49.3305 mm")),
    Sketcher.Constraint("DistanceY", -1, 1, 9, 3, Q("573.7675 mm")),
])
pocket4 = body.newObject("PartDesign::Pocket", "Pocket003")
pocket4.Profile = sketch5
pocket4.Type = "ThroughAll"
pocket4.Reversed = True

# Sketch on XZ plane
sketch6 = body.newObject("Sketcher::SketchObject", "Sketch005")
sketch6.AttachmentSupport = (doc.getObject("XZ_Plane"), [""])
sketch6.MapMode = "FlatFace"
sketch6.AttachmentOffset = App.Placement(App.Vector(0, 0, 0.375 * 25.4), App.Rotation())
sketch6.addGeometry([
    Part.LineSegment(App.Vector(-4.0825, 602.4695, 0), App.Vector(-4.0825, 605.8695, 0)),  # 0
    Part.ArcOfCircle(Part.Circle(App.Vector(-2.3825, 605.8695, 0), App.Vector(0, 0, 1), 1.7), math.radians(0), math.radians(180)),  # 1
    Part.LineSegment(App.Vector(-0.6825, 605.8695, 0), App.Vector(-0.6825, 602.4695, 0)),  # 2
    Part.ArcOfCircle(Part.Circle(App.Vector(-2.3825, 602.4695, 0), App.Vector(0, 0, 1), 1.7), math.radians(180), math.radians(360)),  # 3
    Part.LineSegment(App.Vector(-4.0825, 573.7675, 0), App.Vector(-4.0825, 577.1675, 0)),  # 4
    Part.ArcOfCircle(Part.Circle(App.Vector(-2.3825, 577.1675, 0), App.Vector(0, 0, 1), 1.7), math.radians(0), math.radians(180)),  # 5
    Part.LineSegment(App.Vector(-0.6825, 577.1675, 0), App.Vector(-0.6825, 573.7675, 0)),  # 6
    Part.ArcOfCircle(Part.Circle(App.Vector(-2.3825, 573.7675, 0), App.Vector(0, 0, 1), 1.7), math.radians(180), math.radians(360)),  # 7
    Part.LineSegment(App.Vector(-4.0825, 78.0325, 0), App.Vector(-4.0825, 81.4325, 0)),  # 8
    Part.ArcOfCircle(Part.Circle(App.Vector(-2.3825, 81.4325, 0), App.Vector(0, 0, 1), 1.7), math.radians(0), math.radians(180)),  # 9
    Part.LineSegment(App.Vector(-0.6825, 81.4325, 0), App.Vector(-0.6825, 78.0325, 0)),  # 10
    Part.ArcOfCircle(Part.Circle(App.Vector(-2.3825, 78.0325, 0), App.Vector(0, 0, 1), 1.7), math.radians(180), math.radians(360)),  # 11
    Part.LineSegment(App.Vector(-4.0825, 49.3305, 0), App.Vector(-4.0825, 52.7305, 0)),  # 12
    Part.ArcOfCircle(Part.Circle(App.Vector(-2.3825, 52.7305, 0), App.Vector(0, 0, 1), 1.7), math.radians(0), math.radians(180)),  # 13
    Part.LineSegment(App.Vector(-0.6825, 52.7305, 0), App.Vector(-0.6825, 49.3305, 0)),  # 14
    Part.ArcOfCircle(Part.Circle(App.Vector(-2.3825, 49.3305, 0), App.Vector(0, 0, 1), 1.7), math.radians(180), math.radians(360)),  # 15
], False)
sketch6.addConstraint([
    Sketcher.Constraint("Tangent", 0, 2, 1, 2),
    Sketcher.Constraint("Tangent", 1, 1, 2, 1),
    Sketcher.Constraint("Tangent", 2, 2, 3, 2),
    Sketcher.Constraint("Tangent", 3, 1, 0, 1),
    Sketcher.Constraint("Tangent", 4, 2, 5, 2),
    Sketcher.Constraint("Tangent", 5, 1, 6, 1),
    Sketcher.Constraint("Tangent", 6, 2, 7, 2),
    Sketcher.Constraint("Tangent", 7, 1, 4, 1),
    Sketcher.Constraint("Tangent", 8, 2, 9, 2),
    Sketcher.Constraint("Tangent", 9, 1, 10, 1),
    Sketcher.Constraint("Tangent", 10, 2, 11, 2),
    Sketcher.Constraint("Tangent", 11, 1, 8, 1),
    Sketcher.Constraint("Tangent", 12, 2, 13, 2),
    Sketcher.Constraint("Tangent", 13, 1, 14, 1),
    Sketcher.Constraint("Tangent", 14, 2, 15, 2),
    Sketcher.Constraint("Tangent", 15, 1, 12, 1),
    Sketcher.Constraint("Vertical", 0),
    Sketcher.Constraint("Vertical", 2),
    Sketcher.Constraint("Vertical", 4),
    Sketcher.Constraint("Vertical", 6),
    Sketcher.Constraint("Vertical", 8),
    Sketcher.Constraint("Vertical", 10),
    Sketcher.Constraint("Vertical", 12),
    Sketcher.Constraint("Vertical", 14),
    Sketcher.Constraint("Equal", 3, 5),
    Sketcher.Constraint("Equal", 7, 9),
    Sketcher.Constraint("Equal", 11, 13),
    Sketcher.Constraint("Vertical", 3, 3, 5, 3),
    Sketcher.Constraint("Vertical", 7, 3, 9, 3),
    Sketcher.Constraint("Vertical", 11, 3, 13, 3),
    Sketcher.Constraint("Equal", 2, 4),
    Sketcher.Constraint("Equal", 6, 8),
    Sketcher.Constraint("Equal", 10, 12),
    Sketcher.Constraint("Radius", 1, Q("1.7 mm")),
    Sketcher.Constraint("DistanceY", 5, 3, 1, 3, Q("1.13 in")),
    Sketcher.Constraint("DistanceY", 13, 3, 9, 3, Q("1.13 in")),
    Sketcher.Constraint("DistanceY", 0, 1, 0, 2, Q("3.4 mm")),
    Sketcher.Constraint("DistanceX", 1, 3, -1, 1, Q("2.3825 mm")),
    Sketcher.Constraint("DistanceY", -1, 1, 1, 3, Q("605.8695 mm")),
    Sketcher.Constraint("DistanceY", -1, 1, 9, 3, Q("81.4325 mm")),
])
pocket5 = body.newObject("PartDesign::Pocket", "Pocket004")
pocket5.Profile = sketch6
pocket5.Type = "ThroughAll"
pocket5.Reversed = True

doc.recompute()
